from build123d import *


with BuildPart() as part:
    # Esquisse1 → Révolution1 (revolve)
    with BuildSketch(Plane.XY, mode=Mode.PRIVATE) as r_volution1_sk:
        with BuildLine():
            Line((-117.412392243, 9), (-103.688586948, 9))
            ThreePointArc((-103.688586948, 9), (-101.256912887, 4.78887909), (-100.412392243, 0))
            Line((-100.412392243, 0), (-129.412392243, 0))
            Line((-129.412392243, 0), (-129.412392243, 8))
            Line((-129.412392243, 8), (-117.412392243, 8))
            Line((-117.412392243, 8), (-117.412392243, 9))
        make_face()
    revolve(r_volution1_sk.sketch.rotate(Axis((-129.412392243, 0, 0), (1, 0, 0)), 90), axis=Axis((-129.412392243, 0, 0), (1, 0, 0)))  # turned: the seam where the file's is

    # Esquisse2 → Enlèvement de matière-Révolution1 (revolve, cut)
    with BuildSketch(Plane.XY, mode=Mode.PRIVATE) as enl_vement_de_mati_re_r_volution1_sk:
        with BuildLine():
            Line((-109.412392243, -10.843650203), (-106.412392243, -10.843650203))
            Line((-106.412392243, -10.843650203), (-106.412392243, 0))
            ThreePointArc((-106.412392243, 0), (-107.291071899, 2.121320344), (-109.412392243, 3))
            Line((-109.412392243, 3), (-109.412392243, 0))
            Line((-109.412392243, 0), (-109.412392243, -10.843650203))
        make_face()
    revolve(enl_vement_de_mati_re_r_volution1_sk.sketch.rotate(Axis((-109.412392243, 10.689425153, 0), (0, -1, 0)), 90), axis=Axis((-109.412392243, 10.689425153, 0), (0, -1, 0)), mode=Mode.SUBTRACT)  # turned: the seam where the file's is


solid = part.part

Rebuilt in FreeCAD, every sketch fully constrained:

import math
import FreeCAD as App
import Part
import Sketcher

V = App.Vector

doc = App.newDocument("Part")
body = doc.addObject("PartDesign::Body", "Body")

# Sketch on XY plane
sketch1 = body.newObject("Sketcher::SketchObject", "Sketch")
sketch1.AttachmentSupport = (doc.getObject("XY_Plane"), [""])
sketch1.MapMode = "FlatFace"
sketch1.addGeometry([
    Part.LineSegment(V(-103.7, 9, 0), V(-117.4, 9, 0)),  # 0
    Part.LineSegment(V(-117.4, 9, 0), V(-117.4, 8, 0)),  # 1
    Part.LineSegment(V(-117.4, 8, 0), V(-129.4, 8, 0)),  # 2
    Part.LineSegment(V(-129.4, 8, 0), V(-129.4, 0, 0)),  # 3
    Part.LineSegment(V(-129.4, 0, 0), V(-100.4, 0, 0)),  # 4
    Part.ArcOfCircle(Part.Circle(V(-114.4, 0, 0), V(0, 0, 1), 14), math.radians(0), math.radians(40)),  # 5
], False)
sketch1.addConstraint([
    Sketcher.Constraint("Coincident", 0, 2, 1, 1),
    Sketcher.Constraint("Coincident", 1, 2, 2, 1),
    Sketcher.Constraint("Coincident", 2, 2, 3, 1),
    Sketcher.Constraint("Coincident", 3, 2, 4, 1),
    Sketcher.Constraint("Coincident", 4, 2, 5, 1),
    Sketcher.Constraint("Coincident", 5, 2, 0, 1),
    Sketcher.Constraint("Horizontal", 0),
    Sketcher.Constraint("Vertical", 1),
    Sketcher.Constraint("Horizontal", 2),
    Sketcher.Constraint("Vertical", 3),
    Sketcher.Constraint("Horizontal", 4),
    Sketcher.Constraint("PointOnObject", 5, 3, -1),
    Sketcher.Constraint("PointOnObject", 3, 2, -1),
    Sketcher.Constraint("Radius", 5, 14.0),
    Sketcher.Constraint("DistanceX", 2, 2, 2, 1, 12.0),
    Sketcher.Constraint("DistanceX", 4, 1, 4, 2, 29.0),
    Sketcher.Constraint("DistanceY", 1, 2, 1, 1, 1.0),
    Sketcher.Constraint("DistanceY", 3, 2, 3, 1, 8.0),
    Sketcher.Constraint("DistanceX", 5, 3, -1, 1, 114.412392),
])
revolution = body.newObject("PartDesign::Revolution", "Revolution")
revolution.Profile = sketch1
revolution.ReferenceAxis = (sketch1, ["H_Axis"])
revolution.Angle = 360

# Sketch on XY plane
sketch2 = body.newObject("Sketcher::SketchObject", "Sketch001")
sketch2.AttachmentSupport = (doc.getObject("XY_Plane"), [""])
sketch2.MapMode = "FlatFace"
sketch2.addGeometry([
    Part.LineSegment(V(-109.4, -10.8, 0), V(-106.4, -10.8, 0)),
    Part.LineSegment(V(-106.4, -10.8, 0), V(-106.4, 0, 0)),
    Part.ArcOfCircle(Part.Circle(V(-109.4, 0, 0), V(0, 0, 1), 3), math.radians(0), math.radians(90)),
    Part.LineSegment(V(-109.4, 3, 0), V(-109.4, -10.8, 0)),
], False)
sketch2.addGeometry(Part.LineSegment(V(-109.4, 3, 0), V(-109.4, -10.8, 0)), True)  # axis
sketch2.addConstraint([
    Sketcher.Constraint("Coincident", 0, 2, 1, 1),
    Sketcher.Constraint("Tangent", 1, 2, 2, 1),
    Sketcher.Constraint("Coincident", 2, 2, 3, 1),
    Sketcher.Constraint("Coincident", 3, 2, 0, 1),
    Sketcher.Constraint("Horizontal", 0),
    Sketcher.Constraint("Vertical", 1),
    Sketcher.Constraint("Vertical", 3),
    Sketcher.Constraint("Vertical", 4),
    Sketcher.Constraint("Coincident", 4, 1, 2, 2),
    Sketcher.Constraint("PointOnObject", 2, 3, -1),
    Sketcher.Constraint("Horizontal", 0, 2, 4, 2),
    Sketcher.Constraint("Radius", 2, 3.0),
    Sketcher.Constraint("DistanceX", 0, 1, 0, 2, 3.0),
    Sketcher.Constraint("DistanceY", 1, 1, 1, 2, 10.84365),
    Sketcher.Constraint("DistanceX", 2, 3, -1, 1, 109.412392),
])
groove = body.newObject("PartDesign::Groove", "Groove")
groove.Profile = sketch2
groove.ReferenceAxis = (sketch2, ["Axis0"])
groove.Angle = 360

doc.recompute()
